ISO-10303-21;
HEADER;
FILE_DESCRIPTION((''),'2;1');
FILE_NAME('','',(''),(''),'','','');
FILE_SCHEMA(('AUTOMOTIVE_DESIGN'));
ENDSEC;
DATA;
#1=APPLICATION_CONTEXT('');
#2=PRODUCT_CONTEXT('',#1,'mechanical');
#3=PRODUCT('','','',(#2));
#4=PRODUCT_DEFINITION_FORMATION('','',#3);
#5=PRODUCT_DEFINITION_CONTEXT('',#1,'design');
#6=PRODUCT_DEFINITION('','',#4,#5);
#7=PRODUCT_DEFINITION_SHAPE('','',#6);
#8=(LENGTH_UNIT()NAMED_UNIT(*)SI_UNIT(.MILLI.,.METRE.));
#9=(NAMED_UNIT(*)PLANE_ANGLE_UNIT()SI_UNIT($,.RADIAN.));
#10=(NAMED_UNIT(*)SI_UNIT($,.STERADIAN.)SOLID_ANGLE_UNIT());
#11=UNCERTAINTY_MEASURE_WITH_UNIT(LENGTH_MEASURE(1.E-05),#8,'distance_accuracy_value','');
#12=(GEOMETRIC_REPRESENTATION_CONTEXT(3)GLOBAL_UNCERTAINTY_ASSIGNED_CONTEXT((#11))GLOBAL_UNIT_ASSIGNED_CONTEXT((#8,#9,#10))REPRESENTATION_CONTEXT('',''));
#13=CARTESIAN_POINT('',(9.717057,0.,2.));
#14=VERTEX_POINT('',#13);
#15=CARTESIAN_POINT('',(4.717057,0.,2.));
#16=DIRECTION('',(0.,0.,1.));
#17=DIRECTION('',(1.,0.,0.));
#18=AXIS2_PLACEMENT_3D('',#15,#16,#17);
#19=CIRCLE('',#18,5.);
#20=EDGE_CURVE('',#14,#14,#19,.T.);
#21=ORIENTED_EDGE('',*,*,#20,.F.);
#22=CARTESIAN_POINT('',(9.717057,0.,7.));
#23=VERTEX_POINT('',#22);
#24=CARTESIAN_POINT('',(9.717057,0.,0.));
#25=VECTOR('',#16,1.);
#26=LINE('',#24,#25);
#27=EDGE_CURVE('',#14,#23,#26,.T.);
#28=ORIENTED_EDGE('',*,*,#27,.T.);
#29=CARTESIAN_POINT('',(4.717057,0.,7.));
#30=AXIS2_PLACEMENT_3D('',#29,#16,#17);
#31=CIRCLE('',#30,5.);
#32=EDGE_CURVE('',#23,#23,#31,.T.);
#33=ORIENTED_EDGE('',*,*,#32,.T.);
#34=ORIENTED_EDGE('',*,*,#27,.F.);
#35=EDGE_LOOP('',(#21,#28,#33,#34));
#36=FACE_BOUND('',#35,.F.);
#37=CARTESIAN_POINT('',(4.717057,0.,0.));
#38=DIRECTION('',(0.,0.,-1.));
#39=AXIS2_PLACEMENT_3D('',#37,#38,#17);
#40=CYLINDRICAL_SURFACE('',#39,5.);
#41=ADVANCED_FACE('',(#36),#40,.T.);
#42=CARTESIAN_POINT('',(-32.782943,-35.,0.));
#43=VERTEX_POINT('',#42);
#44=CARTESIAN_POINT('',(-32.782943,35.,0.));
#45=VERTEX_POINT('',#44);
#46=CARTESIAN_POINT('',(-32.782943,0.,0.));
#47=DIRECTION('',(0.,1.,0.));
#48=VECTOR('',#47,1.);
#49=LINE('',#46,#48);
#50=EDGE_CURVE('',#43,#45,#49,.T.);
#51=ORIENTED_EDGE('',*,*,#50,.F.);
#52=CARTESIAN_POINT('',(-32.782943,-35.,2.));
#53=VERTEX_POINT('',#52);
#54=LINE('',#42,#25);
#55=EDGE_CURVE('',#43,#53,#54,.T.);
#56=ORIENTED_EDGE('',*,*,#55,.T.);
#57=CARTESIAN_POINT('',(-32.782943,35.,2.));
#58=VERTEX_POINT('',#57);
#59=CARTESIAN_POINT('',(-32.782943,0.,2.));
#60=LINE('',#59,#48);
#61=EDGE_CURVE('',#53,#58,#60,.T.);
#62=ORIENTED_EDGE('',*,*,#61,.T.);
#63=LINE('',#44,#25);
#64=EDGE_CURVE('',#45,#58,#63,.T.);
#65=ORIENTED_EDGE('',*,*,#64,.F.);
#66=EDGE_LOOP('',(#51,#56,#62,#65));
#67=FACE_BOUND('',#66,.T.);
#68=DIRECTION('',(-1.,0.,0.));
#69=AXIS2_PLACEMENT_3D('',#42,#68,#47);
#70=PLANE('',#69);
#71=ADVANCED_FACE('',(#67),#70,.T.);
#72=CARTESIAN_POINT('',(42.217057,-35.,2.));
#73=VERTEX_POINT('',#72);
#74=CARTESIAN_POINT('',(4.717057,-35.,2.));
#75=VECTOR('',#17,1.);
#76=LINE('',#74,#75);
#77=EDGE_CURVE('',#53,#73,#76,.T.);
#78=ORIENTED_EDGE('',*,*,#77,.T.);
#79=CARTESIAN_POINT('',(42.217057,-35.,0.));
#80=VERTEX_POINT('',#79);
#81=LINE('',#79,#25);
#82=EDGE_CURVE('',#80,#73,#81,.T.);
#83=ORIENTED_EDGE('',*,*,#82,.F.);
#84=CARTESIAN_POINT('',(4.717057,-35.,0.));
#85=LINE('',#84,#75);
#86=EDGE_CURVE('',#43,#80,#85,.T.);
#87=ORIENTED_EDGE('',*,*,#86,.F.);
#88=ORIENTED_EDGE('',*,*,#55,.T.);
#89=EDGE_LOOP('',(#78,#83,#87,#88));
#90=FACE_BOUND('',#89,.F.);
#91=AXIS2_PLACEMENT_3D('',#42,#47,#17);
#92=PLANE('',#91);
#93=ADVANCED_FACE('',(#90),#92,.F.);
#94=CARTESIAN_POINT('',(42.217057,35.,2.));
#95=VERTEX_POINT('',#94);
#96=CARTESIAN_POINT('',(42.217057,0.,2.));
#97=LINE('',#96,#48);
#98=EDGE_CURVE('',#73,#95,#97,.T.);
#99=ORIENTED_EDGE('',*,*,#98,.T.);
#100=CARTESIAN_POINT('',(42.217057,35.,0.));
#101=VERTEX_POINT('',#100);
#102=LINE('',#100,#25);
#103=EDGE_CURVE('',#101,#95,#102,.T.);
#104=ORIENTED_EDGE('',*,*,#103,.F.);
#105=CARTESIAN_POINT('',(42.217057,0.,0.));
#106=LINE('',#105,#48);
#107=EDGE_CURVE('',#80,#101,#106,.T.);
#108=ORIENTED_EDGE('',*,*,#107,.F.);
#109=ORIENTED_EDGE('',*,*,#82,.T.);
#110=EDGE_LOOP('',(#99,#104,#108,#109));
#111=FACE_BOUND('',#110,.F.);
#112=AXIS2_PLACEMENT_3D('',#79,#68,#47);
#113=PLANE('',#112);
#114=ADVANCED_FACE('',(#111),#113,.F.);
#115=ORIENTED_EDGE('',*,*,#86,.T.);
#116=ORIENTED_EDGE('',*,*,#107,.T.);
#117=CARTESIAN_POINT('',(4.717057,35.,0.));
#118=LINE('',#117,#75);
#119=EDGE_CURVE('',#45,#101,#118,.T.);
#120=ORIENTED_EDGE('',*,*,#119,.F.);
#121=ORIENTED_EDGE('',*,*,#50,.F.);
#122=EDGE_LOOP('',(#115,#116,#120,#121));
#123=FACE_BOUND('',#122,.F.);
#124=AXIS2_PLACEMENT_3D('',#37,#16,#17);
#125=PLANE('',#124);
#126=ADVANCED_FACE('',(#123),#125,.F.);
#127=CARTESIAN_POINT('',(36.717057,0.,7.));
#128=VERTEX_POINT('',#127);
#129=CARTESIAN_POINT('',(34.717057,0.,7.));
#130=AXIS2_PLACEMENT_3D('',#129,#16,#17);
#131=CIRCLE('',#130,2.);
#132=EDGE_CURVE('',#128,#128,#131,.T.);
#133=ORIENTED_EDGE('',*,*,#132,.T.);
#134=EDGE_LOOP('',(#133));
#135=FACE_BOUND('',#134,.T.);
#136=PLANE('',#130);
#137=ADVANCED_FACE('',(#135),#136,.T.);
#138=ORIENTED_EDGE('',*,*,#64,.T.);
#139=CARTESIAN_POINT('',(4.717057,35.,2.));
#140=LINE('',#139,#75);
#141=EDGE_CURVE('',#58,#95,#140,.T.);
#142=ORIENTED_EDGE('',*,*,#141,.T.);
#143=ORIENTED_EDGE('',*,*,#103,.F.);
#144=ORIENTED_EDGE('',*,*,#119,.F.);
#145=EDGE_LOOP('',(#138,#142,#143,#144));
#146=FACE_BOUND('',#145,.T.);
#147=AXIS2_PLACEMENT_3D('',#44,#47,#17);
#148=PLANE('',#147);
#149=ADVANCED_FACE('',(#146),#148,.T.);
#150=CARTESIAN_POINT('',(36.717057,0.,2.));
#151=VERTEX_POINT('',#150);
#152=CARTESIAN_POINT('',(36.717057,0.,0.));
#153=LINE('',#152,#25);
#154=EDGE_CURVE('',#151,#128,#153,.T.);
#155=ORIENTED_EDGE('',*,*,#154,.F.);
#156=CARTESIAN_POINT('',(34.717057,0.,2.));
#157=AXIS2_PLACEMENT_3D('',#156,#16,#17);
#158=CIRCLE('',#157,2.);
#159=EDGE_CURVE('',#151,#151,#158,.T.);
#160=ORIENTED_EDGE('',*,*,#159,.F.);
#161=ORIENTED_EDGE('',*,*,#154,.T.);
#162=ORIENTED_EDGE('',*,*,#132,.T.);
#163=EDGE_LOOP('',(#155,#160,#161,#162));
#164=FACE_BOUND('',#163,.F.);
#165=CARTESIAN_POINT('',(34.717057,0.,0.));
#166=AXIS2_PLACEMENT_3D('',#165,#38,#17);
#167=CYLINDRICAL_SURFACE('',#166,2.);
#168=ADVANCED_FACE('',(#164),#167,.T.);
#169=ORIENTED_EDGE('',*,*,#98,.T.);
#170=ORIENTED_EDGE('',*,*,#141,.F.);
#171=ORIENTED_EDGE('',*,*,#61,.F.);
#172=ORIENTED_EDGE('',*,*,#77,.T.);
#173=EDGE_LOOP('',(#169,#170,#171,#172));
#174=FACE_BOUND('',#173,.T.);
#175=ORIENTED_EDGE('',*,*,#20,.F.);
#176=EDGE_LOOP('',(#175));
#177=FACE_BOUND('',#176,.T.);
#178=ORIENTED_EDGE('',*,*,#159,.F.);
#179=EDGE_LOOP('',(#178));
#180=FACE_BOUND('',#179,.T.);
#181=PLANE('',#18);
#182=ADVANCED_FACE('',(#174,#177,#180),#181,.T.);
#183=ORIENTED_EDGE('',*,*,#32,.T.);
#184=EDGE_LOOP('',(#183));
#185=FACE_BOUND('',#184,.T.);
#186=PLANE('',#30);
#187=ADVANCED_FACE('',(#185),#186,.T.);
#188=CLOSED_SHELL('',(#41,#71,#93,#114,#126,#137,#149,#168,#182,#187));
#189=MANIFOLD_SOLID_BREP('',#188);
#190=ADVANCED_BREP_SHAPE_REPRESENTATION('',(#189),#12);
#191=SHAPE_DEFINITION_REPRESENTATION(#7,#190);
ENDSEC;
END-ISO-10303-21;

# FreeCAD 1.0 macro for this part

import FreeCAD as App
import Part
import Sketcher


def add_polygon(sketch, points):
    """Adds a closed chain of lines whose ends are joined by coincident constraints."""
    first, n = sketch.GeometryCount, len(points)
    for a, b in zip(points, points[1:] + points[:1]):
        sketch.addGeometry(Part.LineSegment(App.Vector(*a, 0), App.Vector(*b, 0)), False)
    for i in range(n):
        sketch.addConstraint(Sketcher.Constraint("Coincident", first + i, 2, first + (i + 1) % n, 1))

doc = App.newDocument("Part")
body = doc.addObject("PartDesign::Body", "Body")

# Sketch on XY plane
sketch1 = body.newObject("Sketcher::SketchObject", "Sketch")
sketch1.AttachmentSupport = (doc.getObject("XY_Plane"), [""])
sketch1.MapMode = "FlatFace"
add_polygon(sketch1, [(-32.8, 35), (-32.8, -35), (42.2, -35), (42.2, 35)])  # lines 0-3
sketch1.addGeometry(Part.Circle(App.Vector(4.7, 0, 0), App.Vector(0, 0, 1), 5), False)  # 4
sketch1.addGeometry(Part.Circle(App.Vector(34.7, 0, 0), App.Vector(0, 0, 1), 2), False)  # 5
sketch1.addConstraint([
    Sketcher.Constraint("Vertical", 0),
    Sketcher.Constraint("Horizontal", 1),
    Sketcher.Constraint("Vertical", 2),
    Sketcher.Constraint("Horizontal", 3),
    Sketcher.Constraint("PointOnObject", 4, 3, -1),
    Sketcher.Constraint("PointOnObject", 5, 3, -1),
    Sketcher.Constraint("Diameter", 4, 10.0),
    Sketcher.Constraint("Diameter", 5, 4.0),
    Sketcher.Constraint("DistanceX", 1, 1, 1, 2, 75.0),
    Sketcher.Constraint("DistanceY", 0, 2, 0, 1, 70.0),
    Sketcher.Constraint("DistanceY", 0, 2, -1, 1, 35.0),
    Sketcher.Constraint("DistanceX", 4, 3, 5, 3, 30.0),
    Sketcher.Constraint("DistanceX", 0, 2, 4, 3, 37.5),
    Sketcher.Constraint("DistanceX", -1, 1, 4, 3, 4.717057),
])
pad1 = body.newObject("PartDesign::Pad", "Pad")
pad1.Profile = sketch1
pad1.Length = 2

# Sketch on XY plane
sketch2 = body.newObject("Sketcher::SketchObject", "Sketch001")
sketch2.AttachmentSupport = (doc.getObject("XY_Plane"), [""])
sketch2.MapMode = "FlatFace"
sketch2.addGeometry([
    Part.Circle(App.Vector(4.7, 0, 0), App.Vector(0, 0, 1), 5),
    Part.Circle(App.Vector(34.7, 0, 0), App.Vector(0, 0, 1), 2),
], False)
sketch2.addConstraint([
    Sketcher.Constraint("PointOnObject", 0, 3, -1),
    Sketcher.Constraint("PointOnObject", 1, 3, -1),
    Sketcher.Constraint("Diameter", 0, 10.0),
    Sketcher.Constraint("Diameter", 1, 4.0),
    Sketcher.Constraint("DistanceX", 0, 3, 1, 3, 30.0),
    Sketcher.Constraint("DistanceX", -1, 1, 0, 3, 4.717057),
])
pad2 = body.newObject("PartDesign::Pad", "Pad001")
pad2.Profile = sketch2
pad2.Length = 7

doc.recompute()
